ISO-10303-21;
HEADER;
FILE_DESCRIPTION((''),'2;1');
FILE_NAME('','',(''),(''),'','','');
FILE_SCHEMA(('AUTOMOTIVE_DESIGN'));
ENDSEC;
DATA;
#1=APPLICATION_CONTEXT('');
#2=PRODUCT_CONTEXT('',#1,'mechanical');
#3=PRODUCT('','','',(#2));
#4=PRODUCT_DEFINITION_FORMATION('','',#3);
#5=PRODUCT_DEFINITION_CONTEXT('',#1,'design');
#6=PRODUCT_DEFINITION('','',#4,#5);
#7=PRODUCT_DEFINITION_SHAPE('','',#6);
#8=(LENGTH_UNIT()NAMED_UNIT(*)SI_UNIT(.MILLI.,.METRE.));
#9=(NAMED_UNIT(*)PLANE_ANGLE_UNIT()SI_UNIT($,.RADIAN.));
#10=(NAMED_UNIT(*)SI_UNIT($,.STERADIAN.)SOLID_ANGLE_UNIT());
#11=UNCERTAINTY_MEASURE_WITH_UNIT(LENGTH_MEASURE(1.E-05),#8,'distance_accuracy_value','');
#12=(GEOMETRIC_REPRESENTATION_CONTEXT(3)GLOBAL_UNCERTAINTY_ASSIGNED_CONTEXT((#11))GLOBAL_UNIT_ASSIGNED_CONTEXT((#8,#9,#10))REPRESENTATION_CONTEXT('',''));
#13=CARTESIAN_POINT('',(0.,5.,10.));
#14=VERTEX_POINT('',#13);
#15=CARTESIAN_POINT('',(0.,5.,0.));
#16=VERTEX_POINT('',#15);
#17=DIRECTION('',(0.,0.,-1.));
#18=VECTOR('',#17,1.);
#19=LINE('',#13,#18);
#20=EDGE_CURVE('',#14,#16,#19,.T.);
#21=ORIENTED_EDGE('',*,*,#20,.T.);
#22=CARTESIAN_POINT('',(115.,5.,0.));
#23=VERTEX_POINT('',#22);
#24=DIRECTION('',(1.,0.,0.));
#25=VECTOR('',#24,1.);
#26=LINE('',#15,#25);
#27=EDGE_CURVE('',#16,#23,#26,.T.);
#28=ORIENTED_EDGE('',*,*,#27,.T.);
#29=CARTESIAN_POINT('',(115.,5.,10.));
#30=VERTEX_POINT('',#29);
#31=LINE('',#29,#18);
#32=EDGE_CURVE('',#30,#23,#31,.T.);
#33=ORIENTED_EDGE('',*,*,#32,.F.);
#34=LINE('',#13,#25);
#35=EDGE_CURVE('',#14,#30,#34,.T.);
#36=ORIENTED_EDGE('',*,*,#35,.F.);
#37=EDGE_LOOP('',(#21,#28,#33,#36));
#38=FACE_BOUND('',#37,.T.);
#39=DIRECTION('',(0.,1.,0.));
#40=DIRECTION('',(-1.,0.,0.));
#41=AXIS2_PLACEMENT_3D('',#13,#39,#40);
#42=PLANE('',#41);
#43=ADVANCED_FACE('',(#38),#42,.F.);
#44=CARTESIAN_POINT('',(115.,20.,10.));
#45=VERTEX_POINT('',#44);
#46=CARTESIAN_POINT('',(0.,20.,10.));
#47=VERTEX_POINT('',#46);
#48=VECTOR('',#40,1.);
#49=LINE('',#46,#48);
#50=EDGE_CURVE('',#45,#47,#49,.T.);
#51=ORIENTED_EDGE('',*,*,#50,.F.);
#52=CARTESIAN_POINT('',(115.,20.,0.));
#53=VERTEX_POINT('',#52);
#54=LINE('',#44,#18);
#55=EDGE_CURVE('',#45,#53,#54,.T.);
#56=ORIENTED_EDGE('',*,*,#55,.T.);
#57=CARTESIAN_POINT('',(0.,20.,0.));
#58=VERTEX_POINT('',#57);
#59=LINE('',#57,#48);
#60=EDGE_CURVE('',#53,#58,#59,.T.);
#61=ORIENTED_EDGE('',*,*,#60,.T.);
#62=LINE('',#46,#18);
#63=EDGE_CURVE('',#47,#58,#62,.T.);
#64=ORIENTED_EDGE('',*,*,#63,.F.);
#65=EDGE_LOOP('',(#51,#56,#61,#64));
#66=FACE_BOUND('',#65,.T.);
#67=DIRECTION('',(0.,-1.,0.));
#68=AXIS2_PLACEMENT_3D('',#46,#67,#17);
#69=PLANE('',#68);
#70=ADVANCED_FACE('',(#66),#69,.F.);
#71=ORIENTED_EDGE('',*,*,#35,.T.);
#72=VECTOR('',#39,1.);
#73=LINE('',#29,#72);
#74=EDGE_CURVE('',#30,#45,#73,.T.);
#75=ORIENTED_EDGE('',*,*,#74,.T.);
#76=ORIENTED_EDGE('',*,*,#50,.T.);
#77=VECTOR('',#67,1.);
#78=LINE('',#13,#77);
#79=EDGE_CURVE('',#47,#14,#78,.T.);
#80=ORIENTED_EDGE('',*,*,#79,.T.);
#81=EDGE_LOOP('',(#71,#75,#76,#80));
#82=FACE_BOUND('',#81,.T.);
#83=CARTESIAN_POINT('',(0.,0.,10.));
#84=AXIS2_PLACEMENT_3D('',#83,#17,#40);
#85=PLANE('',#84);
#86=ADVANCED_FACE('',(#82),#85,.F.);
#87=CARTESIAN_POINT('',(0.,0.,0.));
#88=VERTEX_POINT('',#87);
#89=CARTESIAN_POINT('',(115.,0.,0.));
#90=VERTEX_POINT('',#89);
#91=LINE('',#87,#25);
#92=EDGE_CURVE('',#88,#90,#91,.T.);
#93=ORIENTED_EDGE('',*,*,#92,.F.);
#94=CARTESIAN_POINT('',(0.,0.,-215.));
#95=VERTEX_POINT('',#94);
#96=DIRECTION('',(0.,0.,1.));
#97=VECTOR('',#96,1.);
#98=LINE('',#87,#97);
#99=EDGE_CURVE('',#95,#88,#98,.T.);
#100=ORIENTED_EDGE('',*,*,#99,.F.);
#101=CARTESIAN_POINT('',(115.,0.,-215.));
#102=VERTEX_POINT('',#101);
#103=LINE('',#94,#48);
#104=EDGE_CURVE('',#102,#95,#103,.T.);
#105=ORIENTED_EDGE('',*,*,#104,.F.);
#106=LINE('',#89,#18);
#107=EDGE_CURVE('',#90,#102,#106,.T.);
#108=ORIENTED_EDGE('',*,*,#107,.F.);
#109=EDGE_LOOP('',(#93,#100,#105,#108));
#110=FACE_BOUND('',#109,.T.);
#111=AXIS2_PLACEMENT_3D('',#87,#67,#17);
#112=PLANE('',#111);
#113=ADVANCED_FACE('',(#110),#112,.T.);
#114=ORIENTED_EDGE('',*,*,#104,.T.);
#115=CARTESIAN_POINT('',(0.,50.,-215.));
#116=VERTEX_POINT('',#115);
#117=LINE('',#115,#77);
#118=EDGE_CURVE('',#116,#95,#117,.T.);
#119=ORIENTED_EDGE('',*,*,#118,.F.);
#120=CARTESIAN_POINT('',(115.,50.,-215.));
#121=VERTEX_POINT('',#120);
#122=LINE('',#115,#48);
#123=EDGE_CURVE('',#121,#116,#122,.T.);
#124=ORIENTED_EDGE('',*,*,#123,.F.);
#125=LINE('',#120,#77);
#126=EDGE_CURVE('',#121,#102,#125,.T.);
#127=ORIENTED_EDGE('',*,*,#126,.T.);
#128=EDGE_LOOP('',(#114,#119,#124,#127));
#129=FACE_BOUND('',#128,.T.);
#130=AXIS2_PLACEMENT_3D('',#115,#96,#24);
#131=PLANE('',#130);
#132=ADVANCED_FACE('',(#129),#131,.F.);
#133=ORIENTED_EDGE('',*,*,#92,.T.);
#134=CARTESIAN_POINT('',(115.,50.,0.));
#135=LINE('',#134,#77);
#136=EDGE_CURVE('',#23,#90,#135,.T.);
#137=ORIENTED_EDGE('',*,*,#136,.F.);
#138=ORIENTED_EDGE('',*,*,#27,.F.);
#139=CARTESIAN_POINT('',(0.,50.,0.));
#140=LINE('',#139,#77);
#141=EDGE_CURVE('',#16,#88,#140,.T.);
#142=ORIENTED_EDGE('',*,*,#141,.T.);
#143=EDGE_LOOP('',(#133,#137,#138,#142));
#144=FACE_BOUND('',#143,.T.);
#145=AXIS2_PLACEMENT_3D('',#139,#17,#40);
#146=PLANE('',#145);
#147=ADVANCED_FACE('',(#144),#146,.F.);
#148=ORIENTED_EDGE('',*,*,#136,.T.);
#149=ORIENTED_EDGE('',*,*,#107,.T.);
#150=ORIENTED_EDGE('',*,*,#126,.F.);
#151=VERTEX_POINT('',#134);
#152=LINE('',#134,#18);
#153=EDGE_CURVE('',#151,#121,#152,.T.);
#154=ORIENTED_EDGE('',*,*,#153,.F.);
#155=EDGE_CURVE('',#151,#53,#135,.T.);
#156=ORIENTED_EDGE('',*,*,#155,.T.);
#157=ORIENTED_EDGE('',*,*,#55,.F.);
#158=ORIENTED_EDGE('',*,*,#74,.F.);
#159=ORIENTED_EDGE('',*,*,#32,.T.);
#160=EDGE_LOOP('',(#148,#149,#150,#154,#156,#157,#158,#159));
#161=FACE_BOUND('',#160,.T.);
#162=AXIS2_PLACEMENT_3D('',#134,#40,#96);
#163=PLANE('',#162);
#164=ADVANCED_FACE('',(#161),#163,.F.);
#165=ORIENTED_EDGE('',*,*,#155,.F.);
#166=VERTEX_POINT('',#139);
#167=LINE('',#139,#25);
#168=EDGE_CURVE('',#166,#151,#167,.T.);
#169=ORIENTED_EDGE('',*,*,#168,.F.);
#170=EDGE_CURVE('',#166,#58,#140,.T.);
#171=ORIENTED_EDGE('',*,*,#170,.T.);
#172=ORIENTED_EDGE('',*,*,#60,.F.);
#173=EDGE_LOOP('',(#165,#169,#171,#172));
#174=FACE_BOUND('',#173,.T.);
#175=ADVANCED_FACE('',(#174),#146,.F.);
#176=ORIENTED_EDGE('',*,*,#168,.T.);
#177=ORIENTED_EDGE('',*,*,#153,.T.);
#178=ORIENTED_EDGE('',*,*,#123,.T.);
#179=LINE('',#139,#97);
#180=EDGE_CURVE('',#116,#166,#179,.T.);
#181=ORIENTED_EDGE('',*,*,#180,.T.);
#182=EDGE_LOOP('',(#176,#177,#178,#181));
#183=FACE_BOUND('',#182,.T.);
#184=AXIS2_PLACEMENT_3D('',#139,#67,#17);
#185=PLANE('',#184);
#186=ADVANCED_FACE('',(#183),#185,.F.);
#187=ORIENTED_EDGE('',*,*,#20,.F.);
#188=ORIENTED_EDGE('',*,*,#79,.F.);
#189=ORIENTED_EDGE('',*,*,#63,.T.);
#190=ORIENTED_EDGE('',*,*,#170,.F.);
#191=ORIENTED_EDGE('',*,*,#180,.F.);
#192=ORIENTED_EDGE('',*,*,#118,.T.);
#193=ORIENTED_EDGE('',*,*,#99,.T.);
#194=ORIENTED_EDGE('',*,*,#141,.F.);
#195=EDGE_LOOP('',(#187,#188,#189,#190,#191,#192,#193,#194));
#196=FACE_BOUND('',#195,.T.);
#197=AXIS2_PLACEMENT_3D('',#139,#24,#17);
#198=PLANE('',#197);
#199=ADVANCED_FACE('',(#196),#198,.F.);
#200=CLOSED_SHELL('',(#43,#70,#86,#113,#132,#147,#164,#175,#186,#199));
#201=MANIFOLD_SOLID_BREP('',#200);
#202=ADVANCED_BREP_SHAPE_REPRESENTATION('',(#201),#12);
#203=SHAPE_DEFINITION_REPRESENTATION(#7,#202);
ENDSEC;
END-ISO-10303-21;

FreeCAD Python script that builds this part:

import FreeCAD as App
import Part
import Sketcher
from FreeCAD import Vector
Q = App.Units.Quantity

doc = App.newDocument("Part")
params = doc.addObject("Spreadsheet::Sheet", "Params")
for row, (alias, value) in enumerate([
    ("sketch1_width", "115 mm"),
    ("sketch1_height", "215 mm"),
    ("pad1_length", "50 mm"),
    ("sketch2_width", "115 mm"),
    ("sketch2_height", "15 mm"),
    ("pad2_length", "10 mm"),
], start=1):
    params.set(f"A{row}", alias)
    params.set(f"B{row}", "=" + value)
    params.setAlias(f"B{row}", alias)

body = doc.addObject("PartDesign::Body", "Body")

# Sketch on XZ plane
sketch1 = body.newObject("Sketcher::SketchObject", "Sketch")
sketch1.AttachmentSupport = (doc.getObject("XZ_Plane"), [""])
sketch1.MapMode = "FlatFace"
sketch1.addGeometry([
    Part.LineSegment(Vector(0, -215, 0), Vector(0, 0, 0)),
    Part.LineSegment(Vector(0, 0, 0), Vector(115, 0, 0)),
    Part.LineSegment(Vector(115, 0, 0), Vector(115, -215, 0)),
    Part.LineSegment(Vector(115, -215, 0), Vector(0, -215, 0)),
], False)
sketch1.addConstraint([
    Sketcher.Constraint("Coincident", 0, 2, 1, 1),
    Sketcher.Constraint("Coincident", 1, 2, 2, 1),
    Sketcher.Constraint("Coincident", 2, 2, 3, 1),
    Sketcher.Constraint("Coincident", 3, 2, 0, 1),
    Sketcher.Constraint("Vertical", 0),
    Sketcher.Constraint("Horizontal", 1),
    Sketcher.Constraint("Vertical", 2),
    Sketcher.Constraint("Horizontal", 3),
    Sketcher.Constraint("Coincident", 0, 2, -1, 1),
    Sketcher.Constraint("DistanceX", 1, 1, 1, 2, Q("115 mm")),
    Sketcher.Constraint("DistanceY", 0, 1, 0, 2, Q("215 mm")),
])
sketch1.setExpression("Constraints[9]", "Params.sketch1_width")
sketch1.setExpression("Constraints[10]", "Params.sketch1_height")
pad1 = body.newObject("PartDesign::Pad", "Pad")
pad1.Profile = sketch1
pad1.setExpression("Length", "Params.pad1_length")
pad1.Reversed = True

# Sketch on XY plane
sketch2 = body.newObject("Sketcher::SketchObject", "Sketch001")
sketch2.AttachmentSupport = (doc.getObject("XY_Plane"), [""])
sketch2.MapMode = "FlatFace"
sketch2.addGeometry([
    Part.LineSegment(Vector(0, 20, 0), Vector(0, 5, 0)),
    Part.LineSegment(Vector(0, 5, 0), Vector(115, 5, 0)),
    Part.LineSegment(Vector(115, 5, 0), Vector(115, 20, 0)),
    Part.LineSegment(Vector(115, 20, 0), Vector(0, 20, 0)),
], False)
sketch2.addConstraint([
    Sketcher.Constraint("Coincident", 0, 2, 1, 1),
    Sketcher.Constraint("Coincident", 1, 2, 2, 1),
    Sketcher.Constraint("Coincident", 2, 2, 3, 1),
    Sketcher.Constraint("Coincident", 3, 2, 0, 1),
    Sketcher.Constraint("Vertical", 0),
    Sketcher.Constraint("Horizontal", 1),
    Sketcher.Constraint("Vertical", 2),
    Sketcher.Constraint("Horizontal", 3),
    Sketcher.Constraint("PointOnObject", 0, 2, -2),
    Sketcher.Constraint("DistanceX", 1, 1, 1, 2, Q("115 mm")),
    Sketcher.Constraint("DistanceY", 0, 2, 0, 1, Q("15 mm")),
    Sketcher.Constraint("DistanceY", -1, 1, 0, 2, Q("5 mm")),
])
sketch2.setExpression("Constraints[9]", "Params.sketch2_width")
sketch2.setExpression("Constraints[10]", "Params.sketch2_height")
pad2 = body.newObject("PartDesign::Pad", "Pad001")
pad2.Profile = sketch2
pad2.setExpression("Length", "Params.pad2_length")

doc.recompute()
